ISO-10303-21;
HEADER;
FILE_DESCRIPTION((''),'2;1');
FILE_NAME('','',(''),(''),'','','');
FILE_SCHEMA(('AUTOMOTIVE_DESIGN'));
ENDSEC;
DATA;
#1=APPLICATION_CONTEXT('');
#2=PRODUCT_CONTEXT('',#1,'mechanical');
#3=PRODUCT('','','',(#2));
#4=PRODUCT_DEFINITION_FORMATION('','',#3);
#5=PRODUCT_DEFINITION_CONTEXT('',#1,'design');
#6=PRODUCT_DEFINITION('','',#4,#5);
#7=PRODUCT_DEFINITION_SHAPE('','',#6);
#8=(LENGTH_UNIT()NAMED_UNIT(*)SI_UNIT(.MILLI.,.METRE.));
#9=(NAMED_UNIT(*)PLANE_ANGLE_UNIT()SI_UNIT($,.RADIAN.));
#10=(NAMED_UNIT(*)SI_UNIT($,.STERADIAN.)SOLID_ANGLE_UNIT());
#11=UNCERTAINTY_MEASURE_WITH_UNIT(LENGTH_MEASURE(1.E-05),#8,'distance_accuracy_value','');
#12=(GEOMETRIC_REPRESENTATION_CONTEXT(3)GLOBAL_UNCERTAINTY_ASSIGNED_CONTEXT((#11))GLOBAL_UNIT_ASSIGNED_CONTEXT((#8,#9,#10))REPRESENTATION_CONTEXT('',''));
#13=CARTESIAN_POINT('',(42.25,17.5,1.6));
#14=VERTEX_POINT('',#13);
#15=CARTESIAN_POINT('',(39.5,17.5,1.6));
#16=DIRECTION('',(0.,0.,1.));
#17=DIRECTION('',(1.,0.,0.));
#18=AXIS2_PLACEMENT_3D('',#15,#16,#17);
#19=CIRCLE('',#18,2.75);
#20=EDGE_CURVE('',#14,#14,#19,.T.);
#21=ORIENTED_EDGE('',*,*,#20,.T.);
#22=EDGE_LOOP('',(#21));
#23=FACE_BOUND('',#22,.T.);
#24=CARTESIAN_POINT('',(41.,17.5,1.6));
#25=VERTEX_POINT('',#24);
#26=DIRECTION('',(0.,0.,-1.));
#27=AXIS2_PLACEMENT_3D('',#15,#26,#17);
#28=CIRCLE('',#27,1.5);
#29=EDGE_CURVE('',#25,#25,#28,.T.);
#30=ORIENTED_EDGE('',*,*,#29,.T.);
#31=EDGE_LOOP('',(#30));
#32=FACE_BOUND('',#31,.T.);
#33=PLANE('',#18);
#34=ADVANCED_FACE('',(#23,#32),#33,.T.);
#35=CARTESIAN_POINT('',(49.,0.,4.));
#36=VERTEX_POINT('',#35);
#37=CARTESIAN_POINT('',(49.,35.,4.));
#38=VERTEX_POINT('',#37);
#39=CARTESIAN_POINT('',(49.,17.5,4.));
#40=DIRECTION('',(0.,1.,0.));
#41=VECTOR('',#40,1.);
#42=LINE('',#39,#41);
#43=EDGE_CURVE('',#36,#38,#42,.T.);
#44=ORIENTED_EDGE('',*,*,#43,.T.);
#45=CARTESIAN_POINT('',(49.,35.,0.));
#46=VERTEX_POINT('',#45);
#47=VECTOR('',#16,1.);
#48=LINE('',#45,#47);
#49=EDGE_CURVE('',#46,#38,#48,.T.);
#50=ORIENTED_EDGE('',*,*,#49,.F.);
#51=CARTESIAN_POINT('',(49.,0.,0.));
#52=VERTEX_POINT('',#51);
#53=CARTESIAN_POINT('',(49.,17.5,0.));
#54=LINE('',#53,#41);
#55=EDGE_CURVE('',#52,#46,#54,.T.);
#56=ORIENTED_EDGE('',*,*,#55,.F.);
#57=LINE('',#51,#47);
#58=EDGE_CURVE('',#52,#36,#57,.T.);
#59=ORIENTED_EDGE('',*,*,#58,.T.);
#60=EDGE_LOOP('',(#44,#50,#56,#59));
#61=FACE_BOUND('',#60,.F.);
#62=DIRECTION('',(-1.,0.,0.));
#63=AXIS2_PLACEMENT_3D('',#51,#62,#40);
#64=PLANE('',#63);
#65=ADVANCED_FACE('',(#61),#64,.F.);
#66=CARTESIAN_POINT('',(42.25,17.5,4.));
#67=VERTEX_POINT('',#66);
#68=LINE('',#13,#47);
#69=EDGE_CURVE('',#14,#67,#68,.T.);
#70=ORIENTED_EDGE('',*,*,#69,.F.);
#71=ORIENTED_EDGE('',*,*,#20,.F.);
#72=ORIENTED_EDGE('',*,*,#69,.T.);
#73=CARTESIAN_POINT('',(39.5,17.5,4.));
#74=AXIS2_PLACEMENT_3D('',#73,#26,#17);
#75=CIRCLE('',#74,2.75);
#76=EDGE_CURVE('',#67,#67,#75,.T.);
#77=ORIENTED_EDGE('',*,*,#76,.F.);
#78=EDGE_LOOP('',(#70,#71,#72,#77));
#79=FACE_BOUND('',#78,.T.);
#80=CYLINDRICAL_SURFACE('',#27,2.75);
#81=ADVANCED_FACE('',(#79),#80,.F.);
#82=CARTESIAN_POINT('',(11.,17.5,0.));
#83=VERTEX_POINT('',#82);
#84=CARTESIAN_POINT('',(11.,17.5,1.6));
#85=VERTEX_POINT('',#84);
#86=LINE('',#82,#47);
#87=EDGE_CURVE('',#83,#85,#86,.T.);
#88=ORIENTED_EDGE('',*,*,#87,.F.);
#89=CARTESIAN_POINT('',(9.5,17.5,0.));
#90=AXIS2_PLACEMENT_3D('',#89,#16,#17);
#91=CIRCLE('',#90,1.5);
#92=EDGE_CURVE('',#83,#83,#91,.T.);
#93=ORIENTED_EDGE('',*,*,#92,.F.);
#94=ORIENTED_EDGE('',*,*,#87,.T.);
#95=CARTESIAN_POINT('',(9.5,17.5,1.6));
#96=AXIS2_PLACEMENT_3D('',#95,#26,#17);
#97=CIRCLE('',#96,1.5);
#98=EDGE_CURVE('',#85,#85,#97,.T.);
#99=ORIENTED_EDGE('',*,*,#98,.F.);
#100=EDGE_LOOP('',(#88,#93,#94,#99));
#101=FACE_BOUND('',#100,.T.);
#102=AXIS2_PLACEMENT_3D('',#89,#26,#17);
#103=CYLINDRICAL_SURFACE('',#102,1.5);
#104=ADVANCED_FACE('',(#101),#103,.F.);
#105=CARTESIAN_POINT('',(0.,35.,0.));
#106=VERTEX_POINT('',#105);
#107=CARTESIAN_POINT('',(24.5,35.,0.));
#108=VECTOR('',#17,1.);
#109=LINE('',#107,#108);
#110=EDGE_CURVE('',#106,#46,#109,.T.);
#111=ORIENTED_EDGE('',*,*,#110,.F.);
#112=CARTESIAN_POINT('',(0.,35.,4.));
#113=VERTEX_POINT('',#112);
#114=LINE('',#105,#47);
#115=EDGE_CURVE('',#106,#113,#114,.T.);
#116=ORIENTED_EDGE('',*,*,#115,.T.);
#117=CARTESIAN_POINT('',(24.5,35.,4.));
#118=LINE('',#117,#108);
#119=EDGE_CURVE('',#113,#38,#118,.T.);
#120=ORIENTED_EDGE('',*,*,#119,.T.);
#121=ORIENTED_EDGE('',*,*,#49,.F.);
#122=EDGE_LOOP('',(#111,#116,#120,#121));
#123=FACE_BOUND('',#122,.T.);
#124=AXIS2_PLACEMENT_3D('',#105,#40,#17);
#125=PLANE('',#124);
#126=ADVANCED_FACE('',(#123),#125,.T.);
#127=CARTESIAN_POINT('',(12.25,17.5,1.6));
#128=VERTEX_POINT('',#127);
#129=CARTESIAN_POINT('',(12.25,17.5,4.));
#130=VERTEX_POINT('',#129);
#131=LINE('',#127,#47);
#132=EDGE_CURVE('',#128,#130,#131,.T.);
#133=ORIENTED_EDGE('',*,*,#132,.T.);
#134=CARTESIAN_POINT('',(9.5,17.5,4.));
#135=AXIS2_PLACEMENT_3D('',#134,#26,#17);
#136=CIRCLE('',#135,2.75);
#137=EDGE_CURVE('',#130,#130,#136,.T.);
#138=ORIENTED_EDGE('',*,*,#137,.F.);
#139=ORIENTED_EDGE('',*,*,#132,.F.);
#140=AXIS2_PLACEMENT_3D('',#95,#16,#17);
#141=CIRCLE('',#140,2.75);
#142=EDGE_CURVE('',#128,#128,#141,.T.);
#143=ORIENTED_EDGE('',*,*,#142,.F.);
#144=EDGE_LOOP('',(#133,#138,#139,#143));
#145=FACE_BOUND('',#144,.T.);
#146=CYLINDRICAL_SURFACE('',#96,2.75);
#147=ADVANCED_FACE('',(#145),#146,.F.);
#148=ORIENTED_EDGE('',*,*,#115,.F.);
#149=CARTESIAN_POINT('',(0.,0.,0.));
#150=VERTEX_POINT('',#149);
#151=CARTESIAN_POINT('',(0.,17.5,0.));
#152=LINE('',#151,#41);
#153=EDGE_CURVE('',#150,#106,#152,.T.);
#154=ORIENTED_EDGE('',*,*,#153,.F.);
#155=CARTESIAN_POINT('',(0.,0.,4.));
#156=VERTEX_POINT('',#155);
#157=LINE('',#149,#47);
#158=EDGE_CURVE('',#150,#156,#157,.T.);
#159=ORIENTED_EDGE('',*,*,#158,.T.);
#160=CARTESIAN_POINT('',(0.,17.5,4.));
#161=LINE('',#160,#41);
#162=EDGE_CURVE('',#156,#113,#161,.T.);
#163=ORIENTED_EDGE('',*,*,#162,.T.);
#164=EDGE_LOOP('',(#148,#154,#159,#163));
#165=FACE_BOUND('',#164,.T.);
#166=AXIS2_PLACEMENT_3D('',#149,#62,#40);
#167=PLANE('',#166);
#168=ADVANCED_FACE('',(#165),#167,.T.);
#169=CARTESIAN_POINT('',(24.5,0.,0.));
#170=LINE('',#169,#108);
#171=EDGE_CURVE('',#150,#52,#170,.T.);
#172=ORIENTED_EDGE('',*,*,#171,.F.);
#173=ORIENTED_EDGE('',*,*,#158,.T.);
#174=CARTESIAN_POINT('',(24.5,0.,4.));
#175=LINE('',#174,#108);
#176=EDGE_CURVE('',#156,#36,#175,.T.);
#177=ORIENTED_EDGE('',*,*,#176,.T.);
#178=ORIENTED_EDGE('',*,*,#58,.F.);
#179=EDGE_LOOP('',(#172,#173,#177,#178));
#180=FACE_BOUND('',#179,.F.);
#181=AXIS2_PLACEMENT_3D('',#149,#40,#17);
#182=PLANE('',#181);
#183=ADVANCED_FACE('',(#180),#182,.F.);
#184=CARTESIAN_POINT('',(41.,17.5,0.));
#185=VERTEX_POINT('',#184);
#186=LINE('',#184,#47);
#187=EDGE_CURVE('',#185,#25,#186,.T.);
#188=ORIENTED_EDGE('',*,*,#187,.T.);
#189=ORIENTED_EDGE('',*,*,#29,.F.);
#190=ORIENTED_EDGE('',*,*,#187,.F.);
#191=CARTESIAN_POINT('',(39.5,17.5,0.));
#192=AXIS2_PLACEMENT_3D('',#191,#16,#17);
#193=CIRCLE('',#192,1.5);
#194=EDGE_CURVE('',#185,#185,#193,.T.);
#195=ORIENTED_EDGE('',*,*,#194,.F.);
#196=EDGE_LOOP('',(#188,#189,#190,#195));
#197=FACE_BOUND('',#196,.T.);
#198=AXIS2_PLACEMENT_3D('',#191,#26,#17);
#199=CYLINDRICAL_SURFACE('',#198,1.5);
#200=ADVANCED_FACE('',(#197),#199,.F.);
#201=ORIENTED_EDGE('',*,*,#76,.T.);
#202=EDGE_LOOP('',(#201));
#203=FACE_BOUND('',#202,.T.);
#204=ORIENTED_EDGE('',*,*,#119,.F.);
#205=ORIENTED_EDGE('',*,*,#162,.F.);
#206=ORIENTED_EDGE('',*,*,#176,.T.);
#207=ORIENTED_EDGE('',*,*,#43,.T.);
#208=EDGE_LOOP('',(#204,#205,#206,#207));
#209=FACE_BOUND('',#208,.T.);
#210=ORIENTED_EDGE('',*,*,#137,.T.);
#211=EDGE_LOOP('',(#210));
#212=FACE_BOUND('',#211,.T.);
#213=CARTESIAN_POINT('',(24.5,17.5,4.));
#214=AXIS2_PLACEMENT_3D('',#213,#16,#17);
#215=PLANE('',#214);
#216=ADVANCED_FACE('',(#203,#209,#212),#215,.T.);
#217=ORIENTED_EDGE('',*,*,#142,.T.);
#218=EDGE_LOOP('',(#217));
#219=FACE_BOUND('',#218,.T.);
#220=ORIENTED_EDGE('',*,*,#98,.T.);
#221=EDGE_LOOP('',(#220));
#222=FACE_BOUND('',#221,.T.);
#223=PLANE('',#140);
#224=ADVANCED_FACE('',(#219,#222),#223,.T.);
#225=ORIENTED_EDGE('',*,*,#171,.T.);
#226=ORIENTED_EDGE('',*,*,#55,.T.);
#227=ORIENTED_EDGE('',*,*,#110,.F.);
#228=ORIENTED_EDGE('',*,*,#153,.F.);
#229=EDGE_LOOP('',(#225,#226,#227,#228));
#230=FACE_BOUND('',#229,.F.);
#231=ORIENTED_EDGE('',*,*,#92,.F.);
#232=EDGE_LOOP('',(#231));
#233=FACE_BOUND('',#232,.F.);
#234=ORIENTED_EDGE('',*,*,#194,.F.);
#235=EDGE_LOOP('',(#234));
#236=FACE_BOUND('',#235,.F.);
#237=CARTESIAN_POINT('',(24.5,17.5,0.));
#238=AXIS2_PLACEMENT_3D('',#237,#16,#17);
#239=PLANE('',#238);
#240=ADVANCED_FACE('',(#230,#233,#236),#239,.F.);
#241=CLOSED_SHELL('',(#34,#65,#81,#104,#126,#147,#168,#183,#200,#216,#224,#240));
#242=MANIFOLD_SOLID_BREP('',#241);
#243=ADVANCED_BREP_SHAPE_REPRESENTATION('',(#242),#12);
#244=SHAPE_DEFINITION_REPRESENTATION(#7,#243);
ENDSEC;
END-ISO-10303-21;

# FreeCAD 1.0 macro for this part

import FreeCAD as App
import Part
import Sketcher

V = App.Vector
Q = App.Units.Quantity


def add_polygon(sketch, points):
    """Adds a closed chain of lines whose ends are joined by coincident constraints."""
    first, n = sketch.GeometryCount, len(points)
    for a, b in zip(points, points[1:] + points[:1]):
        sketch.addGeometry(Part.LineSegment(App.Vector(*a, 0), App.Vector(*b, 0)), False)
    for i in range(n):
        sketch.addConstraint(Sketcher.Constraint("Coincident", first + i, 2, first + (i + 1) % n, 1))

doc = App.newDocument("Part")
body = doc.addObject("PartDesign::Body", "Body")

sketch1 = body.newObject("Sketcher::SketchObject", "Sketch")
sketch1.AttachmentSupport = (doc.getObject("XY_Plane"), [""])
sketch1.MapMode = "FlatFace"
sketch1.AttachmentOffset = App.Placement(V(0, 0, 11.6), App.Rotation())
sketch1.addGeometry(Part.Circle(V(0, 0, 0), V(0, 0, 1), 2.8), False)
sketch1.addConstraint(Sketcher.Constraint("Coincident", 0, 3, -1, 1))
sketch1.addConstraint(Sketcher.Constraint("Diameter", 0, Q("5.5 mm")))
pad1 = body.newObject("PartDesign::Pad", "Pad")
pad1.Profile = sketch1
pad1.Length = 3.4
body2 = doc.addObject("PartDesign::Body", "Body001")

sketch2 = body2.newObject("Sketcher::SketchObject", "Sketch001")
sketch2.AttachmentSupport = (doc.getObject("XY_Plane001"), [""])
sketch2.MapMode = "FlatFace"
sketch2.AttachmentOffset = App.Placement(V(0, 0, 10), App.Rotation())
sketch2.addGeometry(Part.Circle(V(0, 0, 0), V(0, 0, 1), 1.5), False)
sketch2.addConstraint(Sketcher.Constraint("Coincident", 0, 3, -1, 1))
sketch2.addConstraint(Sketcher.Constraint("Diameter", 0, Q("3 mm")))
pad2 = body2.newObject("PartDesign::Pad", "Pad001")
pad2.Profile = sketch2
pad2.Length = 5
doc.recompute()

boolean = body2.newObject("PartDesign::Boolean", "Boolean")
boolean.Type = "Fuse"
boolean.addObjects([body])
body3 = doc.addObject("PartDesign::Body", "Body002")
doc.recompute()

body2.Placement = App.Placement(V(39.5, 17.5, -10), App.Rotation(V(0, 0, 1), 0))
boolean2 = body3.newObject("PartDesign::Boolean", "Boolean001")
boolean2.Type = "Fuse"
boolean2.addObjects([body2])
body4 = doc.addObject("PartDesign::Body", "Body003")

sketch3 = body4.newObject("Sketcher::SketchObject", "Sketch002")
sketch3.AttachmentSupport = (doc.getObject("XY_Plane003"), [""])
sketch3.MapMode = "FlatFace"
sketch3.AttachmentOffset = App.Placement(V(0, 0, 11.6), App.Rotation())
sketch3.addGeometry(Part.Circle(V(0, 0, 0), V(0, 0, 1), 2.8), False)
sketch3.addConstraint(Sketcher.Constraint("Coincident", 0, 3, -1, 1))
sketch3.addConstraint(Sketcher.Constraint("Diameter", 0, Q("5.5 mm")))
pad3 = body4.newObject("PartDesign::Pad", "Pad002")
pad3.Profile = sketch3
pad3.Length = 3.4
body5 = doc.addObject("PartDesign::Body", "Body004")

sketch4 = body5.newObject("Sketcher::SketchObject", "Sketch003")
sketch4.AttachmentSupport = (doc.getObject("XY_Plane004"), [""])
sketch4.MapMode = "FlatFace"
sketch4.AttachmentOffset = App.Placement(V(0, 0, 10), App.Rotation())
sketch4.addGeometry(Part.Circle(V(0, 0, 0), V(0, 0, 1), 1.5), False)
sketch4.addConstraint(Sketcher.Constraint("Coincident", 0, 3, -1, 1))
sketch4.addConstraint(Sketcher.Constraint("Diameter", 0, Q("3 mm")))
pad4 = body5.newObject("PartDesign::Pad", "Pad003")
pad4.Profile = sketch4
pad4.Length = 5
doc.recompute()

boolean3 = body5.newObject("PartDesign::Boolean", "Boolean002")
boolean3.Type = "Fuse"
boolean3.addObjects([body4])
body6 = doc.addObject("PartDesign::Body", "Body005")
doc.recompute()

body5.Placement = App.Placement(V(9.5, 17.5, -10), App.Rotation(V(0, 0, 1), 0))
boolean4 = body6.newObject("PartDesign::Boolean", "Boolean003")
boolean4.Type = "Fuse"
boolean4.addObjects([body5])
body7 = doc.addObject("PartDesign::Body", "Body006")

sketch5 = body7.newObject("Sketcher::SketchObject", "Sketch004")
sketch5.AttachmentSupport = (doc.getObject("XY_Plane006"), [""])
sketch5.MapMode = "FlatFace"
add_polygon(sketch5, [(0, 35), (0, 0), (49, 0), (49, 35)])
sketch5.addConstraint(Sketcher.Constraint("Vertical", 0))
sketch5.addConstraint(Sketcher.Constraint("Horizontal", 1))
sketch5.addConstraint(Sketcher.Constraint("Vertical", 2))
sketch5.addConstraint(Sketcher.Constraint("Horizontal", 3))
sketch5.addConstraint(Sketcher.Constraint("Coincident", 0, 2, -1, 1))
sketch5.addConstraint(Sketcher.Constraint("DistanceX", 1, 1, 1, 2, Q("49 mm")))
sketch5.addConstraint(Sketcher.Constraint("DistanceY", 0, 2, 0, 1, Q("35 mm")))
pad5 = body7.newObject("PartDesign::Pad", "Pad004")
pad5.Profile = sketch5
pad5.Length = 4
doc.recompute()

boolean5 = body7.newObject("PartDesign::Boolean", "Boolean004")
boolean5.Type = "Cut"
boolean5.addObjects([body6])
doc.recompute()

boolean6 = body7.newObject("PartDesign::Boolean", "Boolean005")
boolean6.Type = "Cut"
boolean6.addObjects([body3])

doc.recompute()
